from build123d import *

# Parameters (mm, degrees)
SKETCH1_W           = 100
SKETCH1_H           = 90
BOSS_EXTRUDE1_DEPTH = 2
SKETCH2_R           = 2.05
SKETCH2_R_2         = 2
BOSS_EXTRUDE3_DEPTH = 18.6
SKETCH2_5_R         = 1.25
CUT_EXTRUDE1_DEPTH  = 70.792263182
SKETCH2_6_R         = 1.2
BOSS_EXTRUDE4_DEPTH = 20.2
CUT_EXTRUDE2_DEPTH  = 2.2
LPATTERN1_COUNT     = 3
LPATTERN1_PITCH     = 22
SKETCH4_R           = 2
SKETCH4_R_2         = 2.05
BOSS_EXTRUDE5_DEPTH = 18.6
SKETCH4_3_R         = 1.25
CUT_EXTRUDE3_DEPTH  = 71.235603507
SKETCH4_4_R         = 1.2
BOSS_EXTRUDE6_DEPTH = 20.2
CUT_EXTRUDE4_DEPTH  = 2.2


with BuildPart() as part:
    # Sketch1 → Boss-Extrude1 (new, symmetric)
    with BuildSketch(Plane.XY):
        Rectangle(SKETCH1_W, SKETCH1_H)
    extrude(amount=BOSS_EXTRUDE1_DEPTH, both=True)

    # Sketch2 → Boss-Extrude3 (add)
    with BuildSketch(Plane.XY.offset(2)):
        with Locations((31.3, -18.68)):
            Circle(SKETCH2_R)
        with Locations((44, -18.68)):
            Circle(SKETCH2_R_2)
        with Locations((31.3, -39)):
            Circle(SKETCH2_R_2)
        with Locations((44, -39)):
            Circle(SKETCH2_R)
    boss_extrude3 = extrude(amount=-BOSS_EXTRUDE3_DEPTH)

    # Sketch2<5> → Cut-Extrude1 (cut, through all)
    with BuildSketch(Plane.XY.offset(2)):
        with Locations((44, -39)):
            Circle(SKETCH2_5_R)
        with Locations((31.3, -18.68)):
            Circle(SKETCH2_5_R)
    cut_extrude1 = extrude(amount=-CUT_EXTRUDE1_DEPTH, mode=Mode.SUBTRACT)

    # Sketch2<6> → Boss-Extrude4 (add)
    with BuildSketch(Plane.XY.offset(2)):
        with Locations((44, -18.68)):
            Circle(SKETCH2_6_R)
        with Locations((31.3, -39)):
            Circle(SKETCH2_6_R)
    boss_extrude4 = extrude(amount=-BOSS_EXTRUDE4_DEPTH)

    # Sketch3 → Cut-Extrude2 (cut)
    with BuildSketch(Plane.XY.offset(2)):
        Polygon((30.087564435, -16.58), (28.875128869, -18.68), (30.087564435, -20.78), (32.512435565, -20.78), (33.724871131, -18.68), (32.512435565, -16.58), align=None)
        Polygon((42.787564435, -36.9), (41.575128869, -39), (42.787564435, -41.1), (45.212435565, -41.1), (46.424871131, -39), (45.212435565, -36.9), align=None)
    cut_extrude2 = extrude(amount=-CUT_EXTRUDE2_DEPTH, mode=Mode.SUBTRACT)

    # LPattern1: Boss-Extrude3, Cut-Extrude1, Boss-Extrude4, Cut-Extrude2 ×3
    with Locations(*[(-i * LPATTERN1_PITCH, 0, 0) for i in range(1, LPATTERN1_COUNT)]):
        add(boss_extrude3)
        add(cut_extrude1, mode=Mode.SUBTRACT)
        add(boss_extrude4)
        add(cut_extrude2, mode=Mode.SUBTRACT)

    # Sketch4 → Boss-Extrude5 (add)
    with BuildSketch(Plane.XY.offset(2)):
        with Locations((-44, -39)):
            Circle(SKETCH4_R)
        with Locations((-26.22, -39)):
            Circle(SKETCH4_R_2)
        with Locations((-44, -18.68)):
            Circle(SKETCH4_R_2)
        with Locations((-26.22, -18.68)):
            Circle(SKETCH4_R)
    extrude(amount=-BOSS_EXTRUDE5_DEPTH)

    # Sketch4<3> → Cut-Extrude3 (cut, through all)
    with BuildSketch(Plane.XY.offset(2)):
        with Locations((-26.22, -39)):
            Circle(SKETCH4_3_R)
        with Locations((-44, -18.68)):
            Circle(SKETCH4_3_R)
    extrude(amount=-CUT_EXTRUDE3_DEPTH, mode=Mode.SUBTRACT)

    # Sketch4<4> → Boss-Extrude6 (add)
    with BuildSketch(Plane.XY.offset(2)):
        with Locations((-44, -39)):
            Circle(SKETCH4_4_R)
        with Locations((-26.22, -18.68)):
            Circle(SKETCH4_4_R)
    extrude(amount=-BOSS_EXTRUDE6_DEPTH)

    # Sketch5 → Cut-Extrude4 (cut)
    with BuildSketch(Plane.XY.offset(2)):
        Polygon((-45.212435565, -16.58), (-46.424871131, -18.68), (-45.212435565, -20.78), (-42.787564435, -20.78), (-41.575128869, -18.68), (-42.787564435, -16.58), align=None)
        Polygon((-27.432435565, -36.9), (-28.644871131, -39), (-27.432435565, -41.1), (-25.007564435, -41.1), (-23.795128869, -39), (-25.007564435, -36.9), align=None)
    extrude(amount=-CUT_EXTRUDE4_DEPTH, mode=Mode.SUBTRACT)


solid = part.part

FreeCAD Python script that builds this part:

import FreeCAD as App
import Part
import Sketcher
Q = App.Units.Quantity

doc = App.newDocument("Part")
body = doc.addObject("PartDesign::Body", "Body")

# Sketch on XY plane
sketch1 = doc.addObject("Sketcher::SketchObject", "Sketch")
body.addObject(sketch1)
sketch1.AttachmentSupport = (doc.XY_Plane, [""])
sketch1.MapMode = "FlatFace"
sketch1.addGeometry([
    Part.LineSegment(App.Vector(-50, 45, 0), App.Vector(-50, -45, 0)),
    Part.LineSegment(App.Vector(-50, -45, 0), App.Vector(50, -45, 0)),
    Part.LineSegment(App.Vector(50, -45, 0), App.Vector(50, 45, 0)),
    Part.LineSegment(App.Vector(50, 45, 0), App.Vector(-50, 45, 0)),
], False)
sketch1.addConstraint([
    Sketcher.Constraint("Coincident", 0, 2, 1, 1),
    Sketcher.Constraint("Coincident", 1, 2, 2, 1),
    Sketcher.Constraint("Coincident", 2, 2, 3, 1),
    Sketcher.Constraint("Coincident", 3, 2, 0, 1),
    Sketcher.Constraint("Vertical", 0),
    Sketcher.Constraint("Horizontal", 1),
    Sketcher.Constraint("Vertical", 2),
    Sketcher.Constraint("Horizontal", 3),
    Sketcher.Constraint("Symmetric", 0, 2, 2, 2, -1, 1),
    Sketcher.Constraint("DistanceX", 1, 1, 1, 2, Q("100 mm")),
    Sketcher.Constraint("DistanceY", 0, 2, 0, 1, Q("90 mm")),
])
pad1 = doc.addObject("PartDesign::Pad", "Pad")
body.addObject(pad1)
pad1.Profile = sketch1
pad1.Length = 4
pad1.Midplane = True

# Sketch on XY plane
sketch2 = doc.addObject("Sketcher::SketchObject", "Sketch001")
body.addObject(sketch2)
sketch2.AttachmentSupport = (doc.XY_Plane, [""])
sketch2.MapMode = "FlatFace"
sketch2.AttachmentOffset = App.Placement(App.Vector(0, 0, 2), App.Rotation())
sketch2.addGeometry([
    Part.Circle(App.Vector(31.3, -18.7, 0), App.Vector(0, 0, 1), 2),
    Part.Circle(App.Vector(44, -18.7, 0), App.Vector(0, 0, 1), 2),
    Part.Circle(App.Vector(31.3, -39, 0), App.Vector(0, 0, 1), 2),
    Part.Circle(App.Vector(44, -39, 0), App.Vector(0, 0, 1), 2),
], False)
sketch2.addConstraint([
    Sketcher.Constraint("Equal", 1, 2),
    Sketcher.Constraint("Equal", 0, 3),
    Sketcher.Constraint("Horizontal", 0, 3, 1, 3),
    Sketcher.Constraint("Horizontal", 2, 3, 3, 3),
    Sketcher.Constraint("Vertical", 0, 3, 2, 3),
    Sketcher.Constraint("Vertical", 1, 3, 3, 3),
    Sketcher.Constraint("Diameter", 1, Q("4 mm")),
    Sketcher.Constraint("Diameter", 0, Q("4.1 mm")),
    Sketcher.Constraint("DistanceX", -1, 1, 1, 3, Q("44 mm")),
    Sketcher.Constraint("DistanceY", 2, 3, -1, 1, Q("39 mm")),
    Sketcher.Constraint("DistanceX", -1, 1, 0, 3, Q("31.3 mm")),
    Sketcher.Constraint("DistanceY", 0, 3, -1, 1, Q("18.68 mm")),
])
pad2 = doc.addObject("PartDesign::Pad", "Pad001")
body.addObject(pad2)
pad2.Profile = sketch2
pad2.Length = 18.6
pad2.Reversed = True

# Sketch on XY plane
sketch3 = doc.addObject("Sketcher::SketchObject", "Sketch002")
body.addObject(sketch3)
sketch3.AttachmentSupport = (doc.XY_Plane, [""])
sketch3.MapMode = "FlatFace"
sketch3.AttachmentOffset = App.Placement(App.Vector(0, 0, 2), App.Rotation())
sketch3.addGeometry([
    Part.Circle(App.Vector(44, -39, 0), App.Vector(0, 0, 1), 1.2),
    Part.Circle(App.Vector(31.3, -18.7, 0), App.Vector(0, 0, 1), 1.2),
], False)
sketch3.addConstraint([
    Sketcher.Constraint("Equal", 0, 1),
    Sketcher.Constraint("Diameter", 0, Q("2.5 mm")),
    Sketcher.Constraint("DistanceX", -1, 1, 0, 3, Q("44 mm")),
    Sketcher.Constraint("DistanceY", 0, 3, -1, 1, Q("39 mm")),
    Sketcher.Constraint("DistanceX", -1, 1, 1, 3, Q("31.3 mm")),
    Sketcher.Constraint("DistanceY", 1, 3, -1, 1, Q("18.68 mm")),
])
pocket1 = doc.addObject("PartDesign::Pocket", "Pocket")
body.addObject(pocket1)
pocket1.Profile = sketch3
pocket1.Type = "ThroughAll"

# Sketch on XY plane
sketch4 = doc.addObject("Sketcher::SketchObject", "Sketch003")
body.addObject(sketch4)
sketch4.AttachmentSupport = (doc.XY_Plane, [""])
sketch4.MapMode = "FlatFace"
sketch4.AttachmentOffset = App.Placement(App.Vector(0, 0, 2), App.Rotation())
sketch4.addGeometry([
    Part.Circle(App.Vector(44, -18.7, 0), App.Vector(0, 0, 1), 1.2),
    Part.Circle(App.Vector(31.3, -39, 0), App.Vector(0, 0, 1), 1.2),
], False)
sketch4.addConstraint([
    Sketcher.Constraint("Equal", 0, 1),
    Sketcher.Constraint("Diameter", 0, Q("2.4 mm")),
    Sketcher.Constraint("DistanceX", -1, 1, 0, 3, Q("44 mm")),
    Sketcher.Constraint("DistanceY", 1, 3, -1, 1, Q("39 mm")),
    Sketcher.Constraint("DistanceX", -1, 1, 1, 3, Q("31.3 mm")),
    Sketcher.Constraint("DistanceY", 0, 3, -1, 1, Q("18.68 mm")),
])
pad3 = doc.addObject("PartDesign::Pad", "Pad002")
body.addObject(pad3)
pad3.Profile = sketch4
pad3.Length = 20.2
pad3.Reversed = True

# Sketch on XY plane
sketch5 = doc.addObject("Sketcher::SketchObject", "Sketch004")
body.addObject(sketch5)
sketch5.AttachmentSupport = (doc.XY_Plane, [""])
sketch5.MapMode = "FlatFace"
sketch5.AttachmentOffset = App.Placement(App.Vector(0, 0, 2), App.Rotation())
sketch5.addGeometry([
    Part.LineSegment(App.Vector(30.1, -16.6, 0), App.Vector(28.9, -18.7, 0)),  # 0
    Part.LineSegment(App.Vector(28.9, -18.7, 0), App.Vector(30.1, -20.8, 0)),  # 1
    Part.LineSegment(App.Vector(30.1, -20.8, 0), App.Vector(32.5, -20.8, 0)),  # 2
    Part.LineSegment(App.Vector(32.5, -20.8, 0), App.Vector(33.7, -18.7, 0)),  # 3
    Part.LineSegment(App.Vector(33.7, -18.7, 0), App.Vector(32.5, -16.6, 0)),  # 4
    Part.LineSegment(App.Vector(32.5, -16.6, 0), App.Vector(30.1, -16.6, 0)),  # 5
    Part.LineSegment(App.Vector(42.8, -36.9, 0), App.Vector(41.6, -39, 0)),  # 6
    Part.LineSegment(App.Vector(41.6, -39, 0), App.Vector(42.8, -41.1, 0)),  # 7
    Part.LineSegment(App.Vector(42.8, -41.1, 0), App.Vector(45.2, -41.1, 0)),  # 8
    Part.LineSegment(App.Vector(45.2, -41.1, 0), App.Vector(46.4, -39, 0)),  # 9
    Part.LineSegment(App.Vector(46.4, -39, 0), App.Vector(45.2, -36.9, 0)),  # 10
    Part.LineSegment(App.Vector(45.2, -36.9, 0), App.Vector(42.8, -36.9, 0)),  # 11
], False)
sketch5.addConstraint([
    Sketcher.Constraint("Coincident", 0, 2, 1, 1),
    Sketcher.Constraint("Coincident", 1, 2, 2, 1),
    Sketcher.Constraint("Coincident", 2, 2, 3, 1),
    Sketcher.Constraint("Coincident", 3, 2, 4, 1),
    Sketcher.Constraint("Coincident", 4, 2, 5, 1),
    Sketcher.Constraint("Coincident", 5, 2, 0, 1),
    Sketcher.Constraint("Coincident", 6, 2, 7, 1),
    Sketcher.Constraint("Coincident", 7, 2, 8, 1),
    Sketcher.Constraint("Coincident", 8, 2, 9, 1),
    Sketcher.Constraint("Coincident", 9, 2, 10, 1),
    Sketcher.Constraint("Coincident", 10, 2, 11, 1),
    Sketcher.Constraint("Coincident", 11, 2, 6, 1),
    Sketcher.Constraint("Horizontal", 2),
    Sketcher.Constraint("Horizontal", 5),
    Sketcher.Constraint("Horizontal", 8),
    Sketcher.Constraint("Horizontal", 11),
    Sketcher.Constraint("Parallel", 0, 3),
    Sketcher.Constraint("Parallel", 1, 4),
    Sketcher.Constraint("Parallel", 3, 6),
    Sketcher.Constraint("Parallel", 4, 7),
    Sketcher.Constraint("Parallel", 6, 9),
    Sketcher.Constraint("Parallel", 7, 10),
    Sketcher.Constraint("Horizontal", 0, 2, 3, 2),
    Sketcher.Constraint("Horizontal", 6, 2, 9, 2),
    Sketcher.Constraint("Vertical", 2, 2, 4, 2),
    Sketcher.Constraint("Vertical", 1, 2, 5, 2),
    Sketcher.Constraint("Vertical", 8, 2, 10, 2),
    Sketcher.Constraint("Equal", 5, 8),
    Sketcher.Constraint("Equal", 4, 6),
    Sketcher.Constraint("Angle", 0, Q("-120 deg")),
    Sketcher.Constraint("DistanceY", 6, 2, -1, 1, Q("39 mm")),
    Sketcher.Constraint("DistanceY", 7, 2, -1, 1, Q("41.1 mm")),
    Sketcher.Constraint("DistanceX", 0, 2, 6, 2, Q("12.7 mm")),
    Sketcher.Constraint("DistanceY", 0, 2, -1, 1, Q("18.68 mm")),
    Sketcher.Constraint("DistanceX", 2, 1, 2, 2, Q("2.424871 mm")),
    Sketcher.Constraint("DistanceX", -1, 1, 0, 2, Q("28.875129 mm")),
])
pocket2 = doc.addObject("PartDesign::Pocket", "Pocket001")
body.addObject(pocket2)
pocket2.Profile = sketch5
pocket2.Length = 2.2
doc.recompute()

linearpattern = doc.addObject("PartDesign::LinearPattern", "LinearPattern")
body.addObject(linearpattern)
linearpattern.Originals = [pad2, pocket1, pad3, pocket2]
linearpattern.Direction = (doc.X_Axis, [""])
linearpattern.Mode = "offset"
linearpattern.Offset = 22
linearpattern.Occurrences = 3
linearpattern.Reversed = True
body.Tip = linearpattern

# Sketch on XY plane
sketch6 = doc.addObject("Sketcher::SketchObject", "Sketch005")
body.addObject(sketch6)
sketch6.AttachmentSupport = (doc.XY_Plane, [""])
sketch6.MapMode = "FlatFace"
sketch6.AttachmentOffset = App.Placement(App.Vector(0, 0, 2), App.Rotation())
sketch6.addGeometry([
    Part.Circle(App.Vector(-44, -39, 0), App.Vector(0, 0, 1), 2),
    Part.Circle(App.Vector(-26.2, -39, 0), App.Vector(0, 0, 1), 2),
    Part.Circle(App.Vector(-44, -18.7, 0), App.Vector(0, 0, 1), 2),
    Part.Circle(App.Vector(-26.2, -18.7, 0), App.Vector(0, 0, 1), 2),
], False)
sketch6.addConstraint([
    Sketcher.Constraint("Equal", 1, 2),
    Sketcher.Constraint("Equal", 0, 3),
    Sketcher.Constraint("Horizontal", 0, 3, 1, 3),
    Sketcher.Constraint("Horizontal", 2, 3, 3, 3),
    Sketcher.Constraint("Vertical", 0, 3, 2, 3),
    Sketcher.Constraint("Vertical", 1, 3, 3, 3),
    Sketcher.Constraint("Diameter", 0, Q("4 mm")),
    Sketcher.Constraint("Diameter", 1, Q("4.1 mm")),
    Sketcher.Constraint("DistanceX", 0, 3, -1, 1, Q("44 mm")),
    Sketcher.Constraint("DistanceY", 0, 3, -1, 1, Q("39 mm")),
    Sketcher.Constraint("DistanceX", 1, 3, -1, 1, Q("26.22 mm")),
    Sketcher.Constraint("DistanceY", 2, 3, -1, 1, Q("18.68 mm")),
])
pad4 = doc.addObject("PartDesign::Pad", "Pad003")
body.addObject(pad4)
pad4.Profile = sketch6
pad4.Length = 18.6
pad4.Reversed = True

# Sketch on XY plane
sketch7 = doc.addObject("Sketcher::SketchObject", "Sketch006")
body.addObject(sketch7)
sketch7.AttachmentSupport = (doc.XY_Plane, [""])
sketch7.MapMode = "FlatFace"
sketch7.AttachmentOffset = App.Placement(App.Vector(0, 0, 2), App.Rotation())
sketch7.addGeometry([
    Part.Circle(App.Vector(-26.2, -39, 0), App.Vector(0, 0, 1), 1.2),
    Part.Circle(App.Vector(-44, -18.7, 0), App.Vector(0, 0, 1), 1.2),
], False)
sketch7.addConstraint([
    Sketcher.Constraint("Equal", 0, 1),
    Sketcher.Constraint("Diameter", 0, Q("2.5 mm")),
    Sketcher.Constraint("DistanceY", 0, 3, -1, 1, Q("39 mm")),
    Sketcher.Constraint("DistanceX", 1, 3, -1, 1, Q("44 mm")),
    Sketcher.Constraint("DistanceX", 0, 3, -1, 1, Q("26.22 mm")),
    Sketcher.Constraint("DistanceY", 1, 3, -1, 1, Q("18.68 mm")),
])
pocket3 = doc.addObject("PartDesign::Pocket", "Pocket002")
body.addObject(pocket3)
pocket3.Profile = sketch7
pocket3.Type = "ThroughAll"

# Sketch on XY plane
sketch8 = doc.addObject("Sketcher::SketchObject", "Sketch007")
body.addObject(sketch8)
sketch8.AttachmentSupport = (doc.XY_Plane, [""])
sketch8.MapMode = "FlatFace"
sketch8.AttachmentOffset = App.Placement(App.Vector(0, 0, 2), App.Rotation())
sketch8.addGeometry([
    Part.Circle(App.Vector(-44, -39, 0), App.Vector(0, 0, 1), 1.2),
    Part.Circle(App.Vector(-26.2, -18.7, 0), App.Vector(0, 0, 1), 1.2),
], False)
sketch8.addConstraint([
    Sketcher.Constraint("Equal", 0, 1),
    Sketcher.Constraint("Diameter", 0, Q("2.4 mm")),
    Sketcher.Constraint("DistanceX", 0, 3, -1, 1, Q("44 mm")),
    Sketcher.Constraint("DistanceY", 0, 3, -1, 1, Q("39 mm")),
    Sketcher.Constraint("DistanceX", 1, 3, -1, 1, Q("26.22 mm")),
    Sketcher.Constraint("DistanceY", 1, 3, -1, 1, Q("18.68 mm")),
])
pad5 = doc.addObject("PartDesign::Pad", "Pad004")
body.addObject(pad5)
pad5.Profile = sketch8
pad5.Length = 20.2
pad5.Reversed = True

# Sketch on XY plane
sketch9 = doc.addObject("Sketcher::SketchObject", "Sketch008")
body.addObject(sketch9)
sketch9.AttachmentSupport = (doc.XY_Plane, [""])
sketch9.MapMode = "FlatFace"
sketch9.AttachmentOffset = App.Placement(App.Vector(0, 0, 2), App.Rotation())
sketch9.addGeometry([
    Part.LineSegment(App.Vector(-45.2, -16.6, 0), App.Vector(-46.4, -18.7, 0)),  # 0
    Part.LineSegment(App.Vector(-46.4, -18.7, 0), App.Vector(-45.2, -20.8, 0)),  # 1
    Part.LineSegment(App.Vector(-45.2, -20.8, 0), App.Vector(-42.8, -20.8, 0)),  # 2
    Part.LineSegment(App.Vector(-42.8, -20.8, 0), App.Vector(-41.6, -18.7, 0)),  # 3
    Part.LineSegment(App.Vector(-41.6, -18.7, 0), App.Vector(-42.8, -16.6, 0)),  # 4
    Part.LineSegment(App.Vector(-42.8, -16.6, 0), App.Vector(-45.2, -16.6, 0)),  # 5
    Part.LineSegment(App.Vector(-27.4, -36.9, 0), App.Vector(-28.6, -39, 0)),  # 6
    Part.LineSegment(App.Vector(-28.6, -39, 0), App.Vector(-27.4, -41.1, 0)),  # 7
    Part.LineSegment(App.Vector(-27.4, -41.1, 0), App.Vector(-25, -41.1, 0)),  # 8
    Part.LineSegment(App.Vector(-25, -41.1, 0), App.Vector(-23.8, -39, 0)),  # 9
    Part.LineSegment(App.Vector(-23.8, -39, 0), App.Vector(-25, -36.9, 0)),  # 10
    Part.LineSegment(App.Vector(-25, -36.9, 0), App.Vector(-27.4, -36.9, 0)),  # 11
], False)
sketch9.addConstraint([
    Sketcher.Constraint("Coincident", 0, 2, 1, 1),
    Sketcher.Constraint("Coincident", 1, 2, 2, 1),
    Sketcher.Constraint("Coincident", 2, 2, 3, 1),
    Sketcher.Constraint("Coincident", 3, 2, 4, 1),
    Sketcher.Constraint("Coincident", 4, 2, 5, 1),
    Sketcher.Constraint("Coincident", 5, 2, 0, 1),
    Sketcher.Constraint("Coincident", 6, 2, 7, 1),
    Sketcher.Constraint("Coincident", 7, 2, 8, 1),
    Sketcher.Constraint("Coincident", 8, 2, 9, 1),
    Sketcher.Constraint("Coincident", 9, 2, 10, 1),
    Sketcher.Constraint("Coincident", 10, 2, 11, 1),
    Sketcher.Constraint("Coincident", 11, 2, 6, 1),
    Sketcher.Constraint("Horizontal", 2),
    Sketcher.Constraint("Horizontal", 5),
    Sketcher.Constraint("Horizontal", 8),
    Sketcher.Constraint("Horizontal", 11),
    Sketcher.Constraint("Parallel", 0, 3),
    Sketcher.Constraint("Parallel", 1, 4),
    Sketcher.Constraint("Parallel", 3, 6),
    Sketcher.Constraint("Parallel", 4, 7),
    Sketcher.Constraint("Parallel", 6, 9),
    Sketcher.Constraint("Parallel", 7, 10),
    Sketcher.Constraint("Horizontal", 0, 2, 3, 2),
    Sketcher.Constraint("Horizontal", 6, 2, 9, 2),
    Sketcher.Constraint("Vertical", 2, 2, 4, 2),
    Sketcher.Constraint("Vertical", 1, 2, 5, 2),
    Sketcher.Constraint("Vertical", 8, 2, 10, 2),
    Sketcher.Constraint("Equal", 5, 8),
    Sketcher.Constraint("Equal", 4, 6),
    Sketcher.Constraint("Angle", 0, Q("-120 deg")),
    Sketcher.Constraint("DistanceY", 6, 2, -1, 1, Q("39 mm")),
    Sketcher.Constraint("DistanceY", 7, 2, -1, 1, Q("41.1 mm")),
    Sketcher.Constraint("DistanceY", 0, 2, -1, 1, Q("18.68 mm")),
    Sketcher.Constraint("DistanceX", 0, 2, 6, 2, Q("17.78 mm")),
    Sketcher.Constraint("DistanceX", 2, 1, 2, 2, Q("2.424871 mm")),
    Sketcher.Constraint("DistanceX", 0, 2, -1, 1, Q("46.424871 mm")),
])
pocket4 = doc.addObject("PartDesign::Pocket", "Pocket003")
body.addObject(pocket4)
pocket4.Profile = sketch9
pocket4.Length = 2.2

doc.recompute()
